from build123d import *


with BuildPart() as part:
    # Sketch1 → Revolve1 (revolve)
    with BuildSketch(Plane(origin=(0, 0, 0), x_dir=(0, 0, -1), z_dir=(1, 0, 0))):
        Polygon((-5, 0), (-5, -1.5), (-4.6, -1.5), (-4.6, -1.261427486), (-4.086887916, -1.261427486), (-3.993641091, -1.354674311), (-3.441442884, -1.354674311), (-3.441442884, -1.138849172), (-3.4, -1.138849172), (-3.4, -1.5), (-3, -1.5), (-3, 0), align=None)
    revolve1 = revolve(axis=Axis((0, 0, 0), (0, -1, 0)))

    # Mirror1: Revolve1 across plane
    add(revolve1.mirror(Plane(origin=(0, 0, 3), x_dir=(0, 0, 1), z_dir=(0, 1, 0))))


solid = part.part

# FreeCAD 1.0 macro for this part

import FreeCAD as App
import Part
import Sketcher
from FreeCAD import Vector
Q = App.Units.Quantity

doc = App.newDocument("Part")
body = doc.addObject("PartDesign::Body", "Body")

# Sketch on YZ plane
sketch1 = body.newObject("Sketcher::SketchObject", "Sketch")
sketch1.AttachmentSupport = (doc.getObject("YZ_Plane"), [""])
sketch1.MapMode = "FlatFace"
sketch1.addGeometry(Part.LineSegment(Vector(0, 5, 0), Vector(-1.5, 5, 0)), False)
sketch1.addGeometry(Part.LineSegment(Vector(-1.5, 5, 0), Vector(-1.5, 4.6, 0)), False)
sketch1.addGeometry(Part.LineSegment(Vector(-1.5, 4.6, 0), Vector(-1.261, 4.6, 0)), False)
sketch1.addGeometry(Part.LineSegment(Vector(-1.261, 4.6, 0), Vector(-1.261, 4.087, 0)), False)
sketch1.addGeometry(Part.LineSegment(Vector(-1.261, 4.087, 0), Vector(-1.355, 3.994, 0)), False)
sketch1.addGeometry(Part.LineSegment(Vector(-1.355, 3.994, 0), Vector(-1.355, 3.441, 0)), False)
sketch1.addGeometry(Part.LineSegment(Vector(-1.355, 3.441, 0), Vector(-1.139, 3.441, 0)), False)
sketch1.addGeometry(Part.LineSegment(Vector(-1.139, 3.441, 0), Vector(-1.139, 3.4, 0)), False)
sketch1.addGeometry(Part.LineSegment(Vector(-1.139, 3.4, 0), Vector(-1.5, 3.4, 0)), False)
sketch1.addGeometry(Part.LineSegment(Vector(-1.5, 3.4, 0), Vector(-1.5, 3, 0)), False)
sketch1.addGeometry(Part.LineSegment(Vector(-1.5, 3, 0), Vector(0, 3, 0)), False)
sketch1.addGeometry(Part.LineSegment(Vector(0, 3, 0), Vector(0, 5, 0)), False)
sketch1.addConstraint(Sketcher.Constraint("Coincident", 0, 2, 1, 1))
sketch1.addConstraint(Sketcher.Constraint("Coincident", 1, 2, 2, 1))
sketch1.addConstraint(Sketcher.Constraint("Coincident", 2, 2, 3, 1))
sketch1.addConstraint(Sketcher.Constraint("Coincident", 3, 2, 4, 1))
sketch1.addConstraint(Sketcher.Constraint("Coincident", 4, 2, 5, 1))
sketch1.addConstraint(Sketcher.Constraint("Coincident", 5, 2, 6, 1))
sketch1.addConstraint(Sketcher.Constraint("Coincident", 6, 2, 7, 1))
sketch1.addConstraint(Sketcher.Constraint("Coincident", 7, 2, 8, 1))
sketch1.addConstraint(Sketcher.Constraint("Coincident", 8, 2, 9, 1))
sketch1.addConstraint(Sketcher.Constraint("Coincident", 9, 2, 10, 1))
sketch1.addConstraint(Sketcher.Constraint("Coincident", 10, 2, 11, 1))
sketch1.addConstraint(Sketcher.Constraint("Coincident", 11, 2, 0, 1))
sketch1.addConstraint(Sketcher.Constraint("Horizontal", 0))
sketch1.addConstraint(Sketcher.Constraint("Vertical", 1))
sketch1.addConstraint(Sketcher.Constraint("Horizontal", 2))
sketch1.addConstraint(Sketcher.Constraint("Vertical", 3))
sketch1.addConstraint(Sketcher.Constraint("Vertical", 5))
sketch1.addConstraint(Sketcher.Constraint("Horizontal", 6))
sketch1.addConstraint(Sketcher.Constraint("Vertical", 7))
sketch1.addConstraint(Sketcher.Constraint("Horizontal", 8))
sketch1.addConstraint(Sketcher.Constraint("Vertical", 9))
sketch1.addConstraint(Sketcher.Constraint("Horizontal", 10))
sketch1.addConstraint(Sketcher.Constraint("Vertical", 11))
sketch1.addConstraint(Sketcher.Constraint("PointOnObject", 10, 2, -2))
sketch1.addConstraint(Sketcher.Constraint("Vertical", 1, 2, 8, 2))
sketch1.addConstraint(Sketcher.Constraint("Equal", 1, 9))
sketch1.addConstraint(Sketcher.Constraint("DistanceY", 11, 1, 11, 2, 2.0))
sketch1.addConstraint(Sketcher.Constraint("Angle", 4, Q("-135 deg")))
sketch1.addConstraint(Sketcher.Constraint("DistanceX", 0, 2, 0, 1, 1.5))
sketch1.addConstraint(Sketcher.Constraint("DistanceY", 1, 2, 1, 1, 0.4))
sketch1.addConstraint(Sketcher.Constraint("DistanceY", -1, 1, 0, 2, 5.0))
sketch1.addConstraint(Sketcher.Constraint("DistanceY", 5, 2, 5, 1, 0.552198))
sketch1.addConstraint(Sketcher.Constraint("DistanceX", 8, 2, 8, 1, 0.361151))
sketch1.addConstraint(Sketcher.Constraint("Distance", 4, 0.131871))
sketch1.addConstraint(Sketcher.Constraint("DistanceX", 2, 1, 2, 2, 0.238573))
sketch1.addConstraint(Sketcher.Constraint("DistanceY", 3, 2, 3, 1, 0.513112))
revolution = body.newObject("PartDesign::Revolution", "Revolution")
revolution.Profile = sketch1
revolution.ReferenceAxis = (sketch1, ["H_Axis"])
revolution.Angle = 360
doc.recompute()

mirrored = body.newObject("PartDesign::Mirrored", "Mirrored")
mirrored.Originals = [revolution]
mirrored.MirrorPlane = (doc.getObject("XZ_Plane"), [""])
body.Tip = mirrored

doc.recompute()
